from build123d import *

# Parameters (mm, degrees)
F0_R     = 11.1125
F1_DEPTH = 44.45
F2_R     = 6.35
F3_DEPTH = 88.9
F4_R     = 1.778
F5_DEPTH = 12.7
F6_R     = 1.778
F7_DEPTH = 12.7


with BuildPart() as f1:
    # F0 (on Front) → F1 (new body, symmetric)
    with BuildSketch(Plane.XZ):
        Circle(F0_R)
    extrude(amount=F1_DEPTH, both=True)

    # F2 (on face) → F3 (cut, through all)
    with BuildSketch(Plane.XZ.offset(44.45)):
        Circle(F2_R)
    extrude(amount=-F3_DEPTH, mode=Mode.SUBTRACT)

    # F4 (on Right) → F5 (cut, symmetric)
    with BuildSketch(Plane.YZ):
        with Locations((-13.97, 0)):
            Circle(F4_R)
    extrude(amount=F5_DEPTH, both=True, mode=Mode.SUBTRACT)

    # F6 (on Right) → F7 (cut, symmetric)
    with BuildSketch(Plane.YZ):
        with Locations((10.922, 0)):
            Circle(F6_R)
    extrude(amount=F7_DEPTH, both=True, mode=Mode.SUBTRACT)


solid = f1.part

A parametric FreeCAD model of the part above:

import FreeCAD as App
import Part
import Sketcher
Q = App.Units.Quantity

doc = App.newDocument("Part")
params = doc.addObject("Spreadsheet::Sheet", "Params")
for row, (alias, value) in enumerate([
    ("sketch1_diameter", "0.875 in"),
    ("pad1_length", "3.5 in"),
    ("sketch2_diameter", "0.5 in"),
    ("sketch3_diameter", "0.14 in"),
    ("pocket2_length", "1 in"),
    ("sketch4_diameter", "0.14 in"),
    ("pocket3_length", "1 in"),
], start=1):
    params.set(f"A{row}", alias)
    params.set(f"B{row}", "=" + value)
    params.setAlias(f"B{row}", alias)

body = doc.addObject("PartDesign::Body", "Body")

sketch1 = doc.addObject("Sketcher::SketchObject", "Sketch")
body.addObject(sketch1)
sketch1.AttachmentSupport = (doc.XZ_Plane, [""])
sketch1.MapMode = "FlatFace"
sketch1.addGeometry(Part.Circle(App.Vector(0, 0, 0), App.Vector(0, 0, 1), 11), False)
sketch1.addConstraint([
    Sketcher.Constraint("Coincident", 0, 3, -1, 1),
    Sketcher.Constraint("Diameter", 0, Q("0.875 in")),
])
sketch1.setExpression("Constraints[1]", "Params.sketch1_diameter")
pad1 = doc.addObject("PartDesign::Pad", "Pad")
body.addObject(pad1)
pad1.Profile = sketch1
pad1.setExpression("Length", "Params.pad1_length")
pad1.Midplane = True

sketch2 = doc.addObject("Sketcher::SketchObject", "Sketch001")
body.addObject(sketch2)
sketch2.AttachmentSupport = (doc.XZ_Plane, [""])
sketch2.MapMode = "FlatFace"
sketch2.AttachmentOffset = App.Placement(App.Vector(0, 0, 1.75 * 25.4), App.Rotation())
sketch2.addGeometry(Part.Circle(App.Vector(0, 0, 0), App.Vector(0, 0, 1), 6), False)
sketch2.addConstraint([
    Sketcher.Constraint("Coincident", 0, 3, -1, 1),
    Sketcher.Constraint("Diameter", 0, Q("0.5 in")),
])
sketch2.setExpression("Constraints[1]", "Params.sketch2_diameter")
pocket1 = doc.addObject("PartDesign::Pocket", "Pocket")
body.addObject(pocket1)
pocket1.Profile = sketch2
pocket1.Type = "ThroughAll"

sketch3 = doc.addObject("Sketcher::SketchObject", "Sketch002")
body.addObject(sketch3)
sketch3.AttachmentSupport = (doc.YZ_Plane, [""])
sketch3.MapMode = "FlatFace"
sketch3.addGeometry(Part.Circle(App.Vector(-14, 0, 0), App.Vector(0, 0, 1), 1.8), False)
sketch3.addConstraint([
    Sketcher.Constraint("PointOnObject", 0, 3, -1),
    Sketcher.Constraint("Diameter", 0, Q("0.14 in")),
    Sketcher.Constraint("DistanceX", 0, 3, -1, 1, Q("0.55 in")),
])
sketch3.setExpression("Constraints[1]", "Params.sketch3_diameter")
pocket2 = doc.addObject("PartDesign::Pocket", "Pocket001")
body.addObject(pocket2)
pocket2.Profile = sketch3
pocket2.setExpression("Length", "Params.pocket2_length")
pocket2.Midplane = True

sketch4 = doc.addObject("Sketcher::SketchObject", "Sketch003")
body.addObject(sketch4)
sketch4.AttachmentSupport = (doc.YZ_Plane, [""])
sketch4.MapMode = "FlatFace"
sketch4.addGeometry(Part.Circle(App.Vector(10.9, 0, 0), App.Vector(0, 0, 1), 1.8), False)
sketch4.addConstraint([
    Sketcher.Constraint("PointOnObject", 0, 3, -1),
    Sketcher.Constraint("Diameter", 0, Q("0.14 in")),
    Sketcher.Constraint("DistanceX", -1, 1, 0, 3, Q("0.43 in")),
])
sketch4.setExpression("Constraints[1]", "Params.sketch4_diameter")
pocket3 = doc.addObject("PartDesign::Pocket", "Pocket002")
body.addObject(pocket3)
pocket3.Profile = sketch4
pocket3.setExpression("Length", "Params.pocket3_length")
pocket3.Midplane = True

doc.recompute()
